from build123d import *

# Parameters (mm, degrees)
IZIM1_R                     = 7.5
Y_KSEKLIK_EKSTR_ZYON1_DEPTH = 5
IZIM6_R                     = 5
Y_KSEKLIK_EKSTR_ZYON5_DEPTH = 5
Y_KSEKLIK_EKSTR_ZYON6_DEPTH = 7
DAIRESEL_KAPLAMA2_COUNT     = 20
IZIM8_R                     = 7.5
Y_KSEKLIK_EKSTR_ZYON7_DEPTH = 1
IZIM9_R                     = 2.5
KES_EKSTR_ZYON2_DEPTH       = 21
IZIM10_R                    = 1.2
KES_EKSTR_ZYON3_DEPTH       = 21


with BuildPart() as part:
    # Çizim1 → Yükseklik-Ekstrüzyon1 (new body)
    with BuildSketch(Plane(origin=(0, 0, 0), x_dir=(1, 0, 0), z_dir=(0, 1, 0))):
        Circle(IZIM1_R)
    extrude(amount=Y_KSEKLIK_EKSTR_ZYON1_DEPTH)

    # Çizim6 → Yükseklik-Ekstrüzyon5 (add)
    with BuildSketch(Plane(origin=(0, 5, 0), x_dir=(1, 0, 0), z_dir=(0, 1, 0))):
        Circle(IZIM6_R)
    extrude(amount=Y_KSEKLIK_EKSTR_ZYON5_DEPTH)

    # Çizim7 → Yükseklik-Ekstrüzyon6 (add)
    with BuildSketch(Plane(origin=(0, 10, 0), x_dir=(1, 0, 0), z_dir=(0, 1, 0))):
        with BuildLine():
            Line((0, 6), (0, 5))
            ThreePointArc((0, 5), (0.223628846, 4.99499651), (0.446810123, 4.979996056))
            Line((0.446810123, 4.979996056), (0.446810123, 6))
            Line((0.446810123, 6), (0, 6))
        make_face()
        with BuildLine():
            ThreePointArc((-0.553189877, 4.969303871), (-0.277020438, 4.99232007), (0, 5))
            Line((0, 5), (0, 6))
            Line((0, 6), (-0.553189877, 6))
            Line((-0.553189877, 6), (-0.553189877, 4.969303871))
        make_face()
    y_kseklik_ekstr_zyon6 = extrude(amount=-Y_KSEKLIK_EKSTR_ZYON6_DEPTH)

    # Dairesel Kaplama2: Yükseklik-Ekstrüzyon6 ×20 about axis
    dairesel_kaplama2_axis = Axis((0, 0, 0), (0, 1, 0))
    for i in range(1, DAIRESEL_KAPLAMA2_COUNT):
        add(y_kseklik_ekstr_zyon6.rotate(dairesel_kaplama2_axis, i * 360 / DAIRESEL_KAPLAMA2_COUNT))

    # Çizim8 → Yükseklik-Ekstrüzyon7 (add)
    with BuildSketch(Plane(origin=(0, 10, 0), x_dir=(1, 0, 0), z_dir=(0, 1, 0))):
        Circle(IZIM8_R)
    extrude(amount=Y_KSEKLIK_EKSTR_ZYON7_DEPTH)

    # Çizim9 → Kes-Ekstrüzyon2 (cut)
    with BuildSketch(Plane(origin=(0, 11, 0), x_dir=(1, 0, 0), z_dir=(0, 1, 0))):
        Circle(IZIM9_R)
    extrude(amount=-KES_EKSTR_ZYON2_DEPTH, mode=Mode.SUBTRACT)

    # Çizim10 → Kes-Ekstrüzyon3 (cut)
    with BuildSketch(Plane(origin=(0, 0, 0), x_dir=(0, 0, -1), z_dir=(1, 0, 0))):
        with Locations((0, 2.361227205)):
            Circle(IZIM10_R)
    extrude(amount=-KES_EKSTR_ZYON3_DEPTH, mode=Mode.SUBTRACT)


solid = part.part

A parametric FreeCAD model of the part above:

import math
import FreeCAD as App
import Part
import Sketcher

V = App.Vector
Q = App.Units.Quantity

doc = App.newDocument("Part")
body = doc.addObject("PartDesign::Body", "Body")

# Sketch on XZ plane
sketch1 = doc.addObject("Sketcher::SketchObject", "Sketch")
body.addObject(sketch1)
sketch1.AttachmentSupport = (doc.XZ_Plane, [""])
sketch1.MapMode = "FlatFace"
sketch1.addGeometry(Part.Circle(V(0, 0, 0), V(0, 0, 1), 8), False)
sketch1.addConstraint(Sketcher.Constraint("Coincident", 0, 3, -1, 1))
sketch1.addConstraint(Sketcher.Constraint("Diameter", 0, Q("15 mm")))
pad1 = doc.addObject("PartDesign::Pad", "Pad")
body.addObject(pad1)
pad1.Profile = sketch1
pad1.Length = 5
pad1.Reversed = True

# Sketch on XZ plane
sketch2 = doc.addObject("Sketcher::SketchObject", "Sketch001")
body.addObject(sketch2)
sketch2.AttachmentSupport = (doc.XZ_Plane, [""])
sketch2.MapMode = "FlatFace"
sketch2.AttachmentOffset = App.Placement(V(0, 0, -5), App.Rotation())
sketch2.addGeometry(Part.Circle(V(0, 0, 0), V(0, 0, 1), 5), False)
sketch2.addConstraint(Sketcher.Constraint("Coincident", 0, 3, -1, 1))
sketch2.addConstraint(Sketcher.Constraint("Diameter", 0, Q("10 mm")))
pad2 = doc.addObject("PartDesign::Pad", "Pad001")
body.addObject(pad2)
pad2.Profile = sketch2
pad2.Length = 5
pad2.Reversed = True

# Sketch on XZ plane
sketch3 = doc.addObject("Sketcher::SketchObject", "Sketch002")
body.addObject(sketch3)
sketch3.AttachmentSupport = (doc.XZ_Plane, [""])
sketch3.MapMode = "FlatFace"
sketch3.AttachmentOffset = App.Placement(V(0, 0, -10), App.Rotation())
sketch3.addGeometry(Part.ArcOfCircle(Part.Circle(V(0, 0, 0), V(0, 0, 1), 5), math.radians(-90), math.radians(-84.87)), False)
sketch3.addGeometry(Part.LineSegment(V(0.45, -4.98, 0), V(0.45, -6, 0)), False)
sketch3.addGeometry(Part.LineSegment(V(0.45, -6, 0), V(-0.55, -6, 0)), False)
sketch3.addGeometry(Part.LineSegment(V(-0.55, -6, 0), V(-0.55, -4.97, 0)), False)
sketch3.addGeometry(Part.ArcOfCircle(Part.Circle(V(0, 0, 0), V(0, 0, 1), 5), math.radians(-96.35), math.radians(-90)), False)
sketch3.addConstraint(Sketcher.Constraint("Coincident", 0, 2, 1, 1))
sketch3.addConstraint(Sketcher.Constraint("Coincident", 1, 2, 2, 1))
sketch3.addConstraint(Sketcher.Constraint("Coincident", 2, 2, 3, 1))
sketch3.addConstraint(Sketcher.Constraint("Coincident", 3, 2, 4, 1))
sketch3.addConstraint(Sketcher.Constraint("Tangent", 4, 2, 0, 1))
sketch3.addConstraint(Sketcher.Constraint("Vertical", 1))
sketch3.addConstraint(Sketcher.Constraint("Horizontal", 2))
sketch3.addConstraint(Sketcher.Constraint("Vertical", 3))
sketch3.addConstraint(Sketcher.Constraint("Coincident", 0, 3, -1, 1))
sketch3.addConstraint(Sketcher.Constraint("Equal", 0, 4))
sketch3.addConstraint(Sketcher.Constraint("PointOnObject", 4, 2, -2))
sketch3.addConstraint(Sketcher.Constraint("Radius", 0, Q("5.000001 mm")))
sketch3.addConstraint(Sketcher.Constraint("DistanceX", 2, 2, 2, 1, Q("1 mm")))
sketch3.addConstraint(Sketcher.Constraint("DistanceY", 1, 2, -1, 1, Q("6 mm")))
sketch3.addConstraint(Sketcher.Constraint("DistanceY", 1, 2, 1, 1, Q("1.020004 mm")))
pad3 = doc.addObject("PartDesign::Pad", "Pad002")
body.addObject(pad3)
pad3.Profile = sketch3
pad3.Length = 7
doc.recompute()

polarpattern = doc.addObject("PartDesign::PolarPattern", "PolarPattern")
body.addObject(polarpattern)
polarpattern.Originals = [pad3]
polarpattern.Axis = (doc.Y_Axis, [""])
polarpattern.Angle = 360
polarpattern.Occurrences = 20
body.Tip = polarpattern

# Sketch on XZ plane
sketch4 = doc.addObject("Sketcher::SketchObject", "Sketch003")
body.addObject(sketch4)
sketch4.AttachmentSupport = (doc.XZ_Plane, [""])
sketch4.MapMode = "FlatFace"
sketch4.AttachmentOffset = App.Placement(V(0, 0, -10), App.Rotation())
sketch4.addGeometry(Part.Circle(V(0, 0, 0), V(0, 0, 1), 8), False)
sketch4.addConstraint(Sketcher.Constraint("Coincident", 0, 3, -1, 1))
sketch4.addConstraint(Sketcher.Constraint("Diameter", 0, Q("15 mm")))
pad4 = doc.addObject("PartDesign::Pad", "Pad003")
body.addObject(pad4)
pad4.Profile = sketch4
pad4.Length = 1
pad4.Reversed = True

# Sketch on XZ plane
sketch5 = doc.addObject("Sketcher::SketchObject", "Sketch004")
body.addObject(sketch5)
sketch5.AttachmentSupport = (doc.XZ_Plane, [""])
sketch5.MapMode = "FlatFace"
sketch5.AttachmentOffset = App.Placement(V(0, 0, -11), App.Rotation())
sketch5.addGeometry(Part.Circle(V(0, 0, 0), V(0, 0, 1), 2.5), False)
sketch5.addConstraint(Sketcher.Constraint("Coincident", 0, 3, -1, 1))
sketch5.addConstraint(Sketcher.Constraint("Diameter", 0, Q("5 mm")))
pocket1 = doc.addObject("PartDesign::Pocket", "Pocket")
body.addObject(pocket1)
pocket1.Profile = sketch5
pocket1.Length = 21
pocket1.Reversed = True

# Sketch on YZ plane
sketch6 = doc.addObject("Sketcher::SketchObject", "Sketch005")
body.addObject(sketch6)
sketch6.AttachmentSupport = (doc.YZ_Plane, [""])
sketch6.MapMode = "FlatFace"
sketch6.addGeometry(Part.Circle(V(2.4, 0, 0), V(0, 0, 1), 1.2), False)
sketch6.addConstraint(Sketcher.Constraint("PointOnObject", 0, 3, -1))
sketch6.addConstraint(Sketcher.Constraint("Diameter", 0, Q("2.4 mm")))
sketch6.addConstraint(Sketcher.Constraint("DistanceX", -1, 1, 0, 3, Q("2.361227 mm")))
pocket2 = doc.addObject("PartDesign::Pocket", "Pocket001")
body.addObject(pocket2)
pocket2.Profile = sketch6
pocket2.Length = 21

doc.recompute()
